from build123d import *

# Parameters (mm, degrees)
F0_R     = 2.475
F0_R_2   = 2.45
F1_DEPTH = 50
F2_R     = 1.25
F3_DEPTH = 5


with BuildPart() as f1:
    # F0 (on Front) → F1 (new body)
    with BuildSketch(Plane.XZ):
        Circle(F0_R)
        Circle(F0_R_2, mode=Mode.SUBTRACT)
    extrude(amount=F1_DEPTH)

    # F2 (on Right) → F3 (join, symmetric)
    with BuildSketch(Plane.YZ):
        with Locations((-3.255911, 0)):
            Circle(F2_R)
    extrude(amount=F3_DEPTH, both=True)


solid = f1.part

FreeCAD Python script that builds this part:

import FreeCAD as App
import Part
import Sketcher

doc = App.newDocument("Part")
body = doc.addObject("PartDesign::Body", "Body")

sketch1 = doc.addObject("Sketcher::SketchObject", "Sketch")
body.addObject(sketch1)
sketch1.AttachmentSupport = (doc.XZ_Plane, [""])
sketch1.MapMode = "FlatFace"
sketch1.addGeometry(Part.Circle(App.Vector(0, 0, 0), App.Vector(0, 0, 1), 2.475), False)
sketch1.addGeometry(Part.Circle(App.Vector(0, 0, 0), App.Vector(0, 0, 1), 2.45), False)
sketch1.addConstraint(Sketcher.Constraint("Coincident", 0, 3, -1, 1))
sketch1.addConstraint(Sketcher.Constraint("Coincident", 1, 3, -1, 1))
sketch1.addConstraint(Sketcher.Constraint("Diameter", 1, 4.9))
sketch1.addConstraint(Sketcher.Constraint("Diameter", 0, 4.95))
pad1 = doc.addObject("PartDesign::Pad", "Pad")
body.addObject(pad1)
pad1.Profile = sketch1
pad1.Length = 50

sketch2 = doc.addObject("Sketcher::SketchObject", "Sketch001")
body.addObject(sketch2)
sketch2.AttachmentSupport = (doc.YZ_Plane, [""])
sketch2.MapMode = "FlatFace"
sketch2.addGeometry(Part.Circle(App.Vector(-3.255911, 0, 0), App.Vector(0, 0, 1), 1.25), False)
sketch2.addConstraint(Sketcher.Constraint("PointOnObject", 0, 3, -1))
sketch2.addConstraint(Sketcher.Constraint("Diameter", 0, 2.5))
sketch2.addConstraint(Sketcher.Constraint("DistanceX", 0, 3, -1, 1, 3.255911))
pad2 = doc.addObject("PartDesign::Pad", "Pad001")
body.addObject(pad2)
pad2.Profile = sketch2
pad2.Length = 10
pad2.Midplane = True

doc.recompute()
